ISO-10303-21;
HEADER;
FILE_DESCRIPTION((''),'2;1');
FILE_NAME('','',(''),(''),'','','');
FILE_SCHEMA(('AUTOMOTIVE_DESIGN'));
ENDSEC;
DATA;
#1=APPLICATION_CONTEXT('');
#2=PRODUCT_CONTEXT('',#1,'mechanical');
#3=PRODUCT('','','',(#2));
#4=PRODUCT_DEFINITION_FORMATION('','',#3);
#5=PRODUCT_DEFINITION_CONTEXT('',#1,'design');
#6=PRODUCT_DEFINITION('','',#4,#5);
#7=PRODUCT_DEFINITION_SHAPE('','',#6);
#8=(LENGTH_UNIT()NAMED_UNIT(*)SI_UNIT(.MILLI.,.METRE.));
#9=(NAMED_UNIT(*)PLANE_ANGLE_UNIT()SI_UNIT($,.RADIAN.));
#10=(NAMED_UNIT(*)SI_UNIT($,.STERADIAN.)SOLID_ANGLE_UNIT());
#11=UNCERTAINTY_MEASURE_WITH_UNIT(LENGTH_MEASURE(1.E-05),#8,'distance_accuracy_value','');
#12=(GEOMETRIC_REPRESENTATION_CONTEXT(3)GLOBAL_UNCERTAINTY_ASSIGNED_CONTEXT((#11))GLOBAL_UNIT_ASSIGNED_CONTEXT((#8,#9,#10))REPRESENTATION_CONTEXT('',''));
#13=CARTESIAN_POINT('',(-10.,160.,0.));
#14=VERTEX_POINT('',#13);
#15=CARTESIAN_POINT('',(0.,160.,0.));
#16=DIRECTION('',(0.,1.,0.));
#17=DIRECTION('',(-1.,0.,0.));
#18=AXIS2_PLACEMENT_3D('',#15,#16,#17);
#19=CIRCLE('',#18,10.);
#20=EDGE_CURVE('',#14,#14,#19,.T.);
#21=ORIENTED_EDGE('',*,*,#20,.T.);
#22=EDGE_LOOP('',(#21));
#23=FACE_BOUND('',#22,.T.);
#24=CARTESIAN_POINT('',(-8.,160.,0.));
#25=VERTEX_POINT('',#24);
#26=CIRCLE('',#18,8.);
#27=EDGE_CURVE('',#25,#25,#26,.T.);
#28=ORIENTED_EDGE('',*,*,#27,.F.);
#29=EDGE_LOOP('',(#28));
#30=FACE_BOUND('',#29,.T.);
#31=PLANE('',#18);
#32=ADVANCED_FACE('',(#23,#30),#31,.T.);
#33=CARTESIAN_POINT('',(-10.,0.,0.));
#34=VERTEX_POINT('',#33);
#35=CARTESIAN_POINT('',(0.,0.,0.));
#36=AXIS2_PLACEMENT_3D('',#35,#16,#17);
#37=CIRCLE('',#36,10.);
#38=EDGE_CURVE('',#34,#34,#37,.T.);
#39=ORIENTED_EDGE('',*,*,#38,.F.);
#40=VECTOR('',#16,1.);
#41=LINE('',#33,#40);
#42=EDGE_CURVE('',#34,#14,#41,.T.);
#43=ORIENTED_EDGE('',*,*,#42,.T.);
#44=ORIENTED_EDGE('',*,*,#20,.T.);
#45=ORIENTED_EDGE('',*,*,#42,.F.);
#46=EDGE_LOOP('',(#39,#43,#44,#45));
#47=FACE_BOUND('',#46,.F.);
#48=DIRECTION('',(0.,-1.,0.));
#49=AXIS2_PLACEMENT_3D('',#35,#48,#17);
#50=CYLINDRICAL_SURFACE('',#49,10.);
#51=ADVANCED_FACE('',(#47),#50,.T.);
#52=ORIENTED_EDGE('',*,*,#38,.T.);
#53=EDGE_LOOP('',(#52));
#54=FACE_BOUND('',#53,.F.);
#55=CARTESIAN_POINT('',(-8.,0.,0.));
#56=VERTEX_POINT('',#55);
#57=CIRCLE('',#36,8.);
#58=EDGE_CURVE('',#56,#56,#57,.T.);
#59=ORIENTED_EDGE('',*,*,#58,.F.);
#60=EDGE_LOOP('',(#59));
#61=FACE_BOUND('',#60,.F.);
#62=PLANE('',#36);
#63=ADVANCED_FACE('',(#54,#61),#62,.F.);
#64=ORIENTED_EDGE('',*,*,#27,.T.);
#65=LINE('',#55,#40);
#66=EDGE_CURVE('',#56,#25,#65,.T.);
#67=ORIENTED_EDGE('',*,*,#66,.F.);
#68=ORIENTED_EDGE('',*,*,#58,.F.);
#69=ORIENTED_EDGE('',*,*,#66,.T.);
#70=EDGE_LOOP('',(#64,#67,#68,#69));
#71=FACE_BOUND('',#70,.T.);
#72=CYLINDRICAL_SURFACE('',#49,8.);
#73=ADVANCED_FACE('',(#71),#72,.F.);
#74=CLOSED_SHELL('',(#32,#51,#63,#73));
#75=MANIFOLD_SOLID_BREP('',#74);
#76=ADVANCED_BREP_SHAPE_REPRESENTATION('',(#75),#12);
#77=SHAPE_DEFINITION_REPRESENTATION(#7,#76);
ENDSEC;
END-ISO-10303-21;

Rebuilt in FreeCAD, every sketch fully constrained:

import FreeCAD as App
import Part
import Sketcher
from FreeCAD import Vector
Q = App.Units.Quantity

doc = App.newDocument("Part")
body = doc.addObject("PartDesign::Body", "Body")

# Sketch on XZ plane
sketch1 = body.newObject("Sketcher::SketchObject", "Sketch")
sketch1.AttachmentSupport = (doc.getObject("XZ_Plane"), [""])
sketch1.MapMode = "FlatFace"
sketch1.addGeometry([
    Part.Circle(Vector(0, 0, 0), Vector(0, 0, 1), 10),
    Part.Circle(Vector(0, 0, 0), Vector(0, 0, 1), 8),
], False)
sketch1.addConstraint([
    Sketcher.Constraint("Coincident", 0, 3, -1, 1),
    Sketcher.Constraint("Coincident", 1, 3, -1, 1),
    Sketcher.Constraint("Diameter", 0, Q("20 mm")),
    Sketcher.Constraint("Diameter", 1, Q("16 mm")),
])
pad1 = body.newObject("PartDesign::Pad", "Pad")
pad1.Profile = sketch1
pad1.Length = 160
pad1.Reversed = True

doc.recompute()
